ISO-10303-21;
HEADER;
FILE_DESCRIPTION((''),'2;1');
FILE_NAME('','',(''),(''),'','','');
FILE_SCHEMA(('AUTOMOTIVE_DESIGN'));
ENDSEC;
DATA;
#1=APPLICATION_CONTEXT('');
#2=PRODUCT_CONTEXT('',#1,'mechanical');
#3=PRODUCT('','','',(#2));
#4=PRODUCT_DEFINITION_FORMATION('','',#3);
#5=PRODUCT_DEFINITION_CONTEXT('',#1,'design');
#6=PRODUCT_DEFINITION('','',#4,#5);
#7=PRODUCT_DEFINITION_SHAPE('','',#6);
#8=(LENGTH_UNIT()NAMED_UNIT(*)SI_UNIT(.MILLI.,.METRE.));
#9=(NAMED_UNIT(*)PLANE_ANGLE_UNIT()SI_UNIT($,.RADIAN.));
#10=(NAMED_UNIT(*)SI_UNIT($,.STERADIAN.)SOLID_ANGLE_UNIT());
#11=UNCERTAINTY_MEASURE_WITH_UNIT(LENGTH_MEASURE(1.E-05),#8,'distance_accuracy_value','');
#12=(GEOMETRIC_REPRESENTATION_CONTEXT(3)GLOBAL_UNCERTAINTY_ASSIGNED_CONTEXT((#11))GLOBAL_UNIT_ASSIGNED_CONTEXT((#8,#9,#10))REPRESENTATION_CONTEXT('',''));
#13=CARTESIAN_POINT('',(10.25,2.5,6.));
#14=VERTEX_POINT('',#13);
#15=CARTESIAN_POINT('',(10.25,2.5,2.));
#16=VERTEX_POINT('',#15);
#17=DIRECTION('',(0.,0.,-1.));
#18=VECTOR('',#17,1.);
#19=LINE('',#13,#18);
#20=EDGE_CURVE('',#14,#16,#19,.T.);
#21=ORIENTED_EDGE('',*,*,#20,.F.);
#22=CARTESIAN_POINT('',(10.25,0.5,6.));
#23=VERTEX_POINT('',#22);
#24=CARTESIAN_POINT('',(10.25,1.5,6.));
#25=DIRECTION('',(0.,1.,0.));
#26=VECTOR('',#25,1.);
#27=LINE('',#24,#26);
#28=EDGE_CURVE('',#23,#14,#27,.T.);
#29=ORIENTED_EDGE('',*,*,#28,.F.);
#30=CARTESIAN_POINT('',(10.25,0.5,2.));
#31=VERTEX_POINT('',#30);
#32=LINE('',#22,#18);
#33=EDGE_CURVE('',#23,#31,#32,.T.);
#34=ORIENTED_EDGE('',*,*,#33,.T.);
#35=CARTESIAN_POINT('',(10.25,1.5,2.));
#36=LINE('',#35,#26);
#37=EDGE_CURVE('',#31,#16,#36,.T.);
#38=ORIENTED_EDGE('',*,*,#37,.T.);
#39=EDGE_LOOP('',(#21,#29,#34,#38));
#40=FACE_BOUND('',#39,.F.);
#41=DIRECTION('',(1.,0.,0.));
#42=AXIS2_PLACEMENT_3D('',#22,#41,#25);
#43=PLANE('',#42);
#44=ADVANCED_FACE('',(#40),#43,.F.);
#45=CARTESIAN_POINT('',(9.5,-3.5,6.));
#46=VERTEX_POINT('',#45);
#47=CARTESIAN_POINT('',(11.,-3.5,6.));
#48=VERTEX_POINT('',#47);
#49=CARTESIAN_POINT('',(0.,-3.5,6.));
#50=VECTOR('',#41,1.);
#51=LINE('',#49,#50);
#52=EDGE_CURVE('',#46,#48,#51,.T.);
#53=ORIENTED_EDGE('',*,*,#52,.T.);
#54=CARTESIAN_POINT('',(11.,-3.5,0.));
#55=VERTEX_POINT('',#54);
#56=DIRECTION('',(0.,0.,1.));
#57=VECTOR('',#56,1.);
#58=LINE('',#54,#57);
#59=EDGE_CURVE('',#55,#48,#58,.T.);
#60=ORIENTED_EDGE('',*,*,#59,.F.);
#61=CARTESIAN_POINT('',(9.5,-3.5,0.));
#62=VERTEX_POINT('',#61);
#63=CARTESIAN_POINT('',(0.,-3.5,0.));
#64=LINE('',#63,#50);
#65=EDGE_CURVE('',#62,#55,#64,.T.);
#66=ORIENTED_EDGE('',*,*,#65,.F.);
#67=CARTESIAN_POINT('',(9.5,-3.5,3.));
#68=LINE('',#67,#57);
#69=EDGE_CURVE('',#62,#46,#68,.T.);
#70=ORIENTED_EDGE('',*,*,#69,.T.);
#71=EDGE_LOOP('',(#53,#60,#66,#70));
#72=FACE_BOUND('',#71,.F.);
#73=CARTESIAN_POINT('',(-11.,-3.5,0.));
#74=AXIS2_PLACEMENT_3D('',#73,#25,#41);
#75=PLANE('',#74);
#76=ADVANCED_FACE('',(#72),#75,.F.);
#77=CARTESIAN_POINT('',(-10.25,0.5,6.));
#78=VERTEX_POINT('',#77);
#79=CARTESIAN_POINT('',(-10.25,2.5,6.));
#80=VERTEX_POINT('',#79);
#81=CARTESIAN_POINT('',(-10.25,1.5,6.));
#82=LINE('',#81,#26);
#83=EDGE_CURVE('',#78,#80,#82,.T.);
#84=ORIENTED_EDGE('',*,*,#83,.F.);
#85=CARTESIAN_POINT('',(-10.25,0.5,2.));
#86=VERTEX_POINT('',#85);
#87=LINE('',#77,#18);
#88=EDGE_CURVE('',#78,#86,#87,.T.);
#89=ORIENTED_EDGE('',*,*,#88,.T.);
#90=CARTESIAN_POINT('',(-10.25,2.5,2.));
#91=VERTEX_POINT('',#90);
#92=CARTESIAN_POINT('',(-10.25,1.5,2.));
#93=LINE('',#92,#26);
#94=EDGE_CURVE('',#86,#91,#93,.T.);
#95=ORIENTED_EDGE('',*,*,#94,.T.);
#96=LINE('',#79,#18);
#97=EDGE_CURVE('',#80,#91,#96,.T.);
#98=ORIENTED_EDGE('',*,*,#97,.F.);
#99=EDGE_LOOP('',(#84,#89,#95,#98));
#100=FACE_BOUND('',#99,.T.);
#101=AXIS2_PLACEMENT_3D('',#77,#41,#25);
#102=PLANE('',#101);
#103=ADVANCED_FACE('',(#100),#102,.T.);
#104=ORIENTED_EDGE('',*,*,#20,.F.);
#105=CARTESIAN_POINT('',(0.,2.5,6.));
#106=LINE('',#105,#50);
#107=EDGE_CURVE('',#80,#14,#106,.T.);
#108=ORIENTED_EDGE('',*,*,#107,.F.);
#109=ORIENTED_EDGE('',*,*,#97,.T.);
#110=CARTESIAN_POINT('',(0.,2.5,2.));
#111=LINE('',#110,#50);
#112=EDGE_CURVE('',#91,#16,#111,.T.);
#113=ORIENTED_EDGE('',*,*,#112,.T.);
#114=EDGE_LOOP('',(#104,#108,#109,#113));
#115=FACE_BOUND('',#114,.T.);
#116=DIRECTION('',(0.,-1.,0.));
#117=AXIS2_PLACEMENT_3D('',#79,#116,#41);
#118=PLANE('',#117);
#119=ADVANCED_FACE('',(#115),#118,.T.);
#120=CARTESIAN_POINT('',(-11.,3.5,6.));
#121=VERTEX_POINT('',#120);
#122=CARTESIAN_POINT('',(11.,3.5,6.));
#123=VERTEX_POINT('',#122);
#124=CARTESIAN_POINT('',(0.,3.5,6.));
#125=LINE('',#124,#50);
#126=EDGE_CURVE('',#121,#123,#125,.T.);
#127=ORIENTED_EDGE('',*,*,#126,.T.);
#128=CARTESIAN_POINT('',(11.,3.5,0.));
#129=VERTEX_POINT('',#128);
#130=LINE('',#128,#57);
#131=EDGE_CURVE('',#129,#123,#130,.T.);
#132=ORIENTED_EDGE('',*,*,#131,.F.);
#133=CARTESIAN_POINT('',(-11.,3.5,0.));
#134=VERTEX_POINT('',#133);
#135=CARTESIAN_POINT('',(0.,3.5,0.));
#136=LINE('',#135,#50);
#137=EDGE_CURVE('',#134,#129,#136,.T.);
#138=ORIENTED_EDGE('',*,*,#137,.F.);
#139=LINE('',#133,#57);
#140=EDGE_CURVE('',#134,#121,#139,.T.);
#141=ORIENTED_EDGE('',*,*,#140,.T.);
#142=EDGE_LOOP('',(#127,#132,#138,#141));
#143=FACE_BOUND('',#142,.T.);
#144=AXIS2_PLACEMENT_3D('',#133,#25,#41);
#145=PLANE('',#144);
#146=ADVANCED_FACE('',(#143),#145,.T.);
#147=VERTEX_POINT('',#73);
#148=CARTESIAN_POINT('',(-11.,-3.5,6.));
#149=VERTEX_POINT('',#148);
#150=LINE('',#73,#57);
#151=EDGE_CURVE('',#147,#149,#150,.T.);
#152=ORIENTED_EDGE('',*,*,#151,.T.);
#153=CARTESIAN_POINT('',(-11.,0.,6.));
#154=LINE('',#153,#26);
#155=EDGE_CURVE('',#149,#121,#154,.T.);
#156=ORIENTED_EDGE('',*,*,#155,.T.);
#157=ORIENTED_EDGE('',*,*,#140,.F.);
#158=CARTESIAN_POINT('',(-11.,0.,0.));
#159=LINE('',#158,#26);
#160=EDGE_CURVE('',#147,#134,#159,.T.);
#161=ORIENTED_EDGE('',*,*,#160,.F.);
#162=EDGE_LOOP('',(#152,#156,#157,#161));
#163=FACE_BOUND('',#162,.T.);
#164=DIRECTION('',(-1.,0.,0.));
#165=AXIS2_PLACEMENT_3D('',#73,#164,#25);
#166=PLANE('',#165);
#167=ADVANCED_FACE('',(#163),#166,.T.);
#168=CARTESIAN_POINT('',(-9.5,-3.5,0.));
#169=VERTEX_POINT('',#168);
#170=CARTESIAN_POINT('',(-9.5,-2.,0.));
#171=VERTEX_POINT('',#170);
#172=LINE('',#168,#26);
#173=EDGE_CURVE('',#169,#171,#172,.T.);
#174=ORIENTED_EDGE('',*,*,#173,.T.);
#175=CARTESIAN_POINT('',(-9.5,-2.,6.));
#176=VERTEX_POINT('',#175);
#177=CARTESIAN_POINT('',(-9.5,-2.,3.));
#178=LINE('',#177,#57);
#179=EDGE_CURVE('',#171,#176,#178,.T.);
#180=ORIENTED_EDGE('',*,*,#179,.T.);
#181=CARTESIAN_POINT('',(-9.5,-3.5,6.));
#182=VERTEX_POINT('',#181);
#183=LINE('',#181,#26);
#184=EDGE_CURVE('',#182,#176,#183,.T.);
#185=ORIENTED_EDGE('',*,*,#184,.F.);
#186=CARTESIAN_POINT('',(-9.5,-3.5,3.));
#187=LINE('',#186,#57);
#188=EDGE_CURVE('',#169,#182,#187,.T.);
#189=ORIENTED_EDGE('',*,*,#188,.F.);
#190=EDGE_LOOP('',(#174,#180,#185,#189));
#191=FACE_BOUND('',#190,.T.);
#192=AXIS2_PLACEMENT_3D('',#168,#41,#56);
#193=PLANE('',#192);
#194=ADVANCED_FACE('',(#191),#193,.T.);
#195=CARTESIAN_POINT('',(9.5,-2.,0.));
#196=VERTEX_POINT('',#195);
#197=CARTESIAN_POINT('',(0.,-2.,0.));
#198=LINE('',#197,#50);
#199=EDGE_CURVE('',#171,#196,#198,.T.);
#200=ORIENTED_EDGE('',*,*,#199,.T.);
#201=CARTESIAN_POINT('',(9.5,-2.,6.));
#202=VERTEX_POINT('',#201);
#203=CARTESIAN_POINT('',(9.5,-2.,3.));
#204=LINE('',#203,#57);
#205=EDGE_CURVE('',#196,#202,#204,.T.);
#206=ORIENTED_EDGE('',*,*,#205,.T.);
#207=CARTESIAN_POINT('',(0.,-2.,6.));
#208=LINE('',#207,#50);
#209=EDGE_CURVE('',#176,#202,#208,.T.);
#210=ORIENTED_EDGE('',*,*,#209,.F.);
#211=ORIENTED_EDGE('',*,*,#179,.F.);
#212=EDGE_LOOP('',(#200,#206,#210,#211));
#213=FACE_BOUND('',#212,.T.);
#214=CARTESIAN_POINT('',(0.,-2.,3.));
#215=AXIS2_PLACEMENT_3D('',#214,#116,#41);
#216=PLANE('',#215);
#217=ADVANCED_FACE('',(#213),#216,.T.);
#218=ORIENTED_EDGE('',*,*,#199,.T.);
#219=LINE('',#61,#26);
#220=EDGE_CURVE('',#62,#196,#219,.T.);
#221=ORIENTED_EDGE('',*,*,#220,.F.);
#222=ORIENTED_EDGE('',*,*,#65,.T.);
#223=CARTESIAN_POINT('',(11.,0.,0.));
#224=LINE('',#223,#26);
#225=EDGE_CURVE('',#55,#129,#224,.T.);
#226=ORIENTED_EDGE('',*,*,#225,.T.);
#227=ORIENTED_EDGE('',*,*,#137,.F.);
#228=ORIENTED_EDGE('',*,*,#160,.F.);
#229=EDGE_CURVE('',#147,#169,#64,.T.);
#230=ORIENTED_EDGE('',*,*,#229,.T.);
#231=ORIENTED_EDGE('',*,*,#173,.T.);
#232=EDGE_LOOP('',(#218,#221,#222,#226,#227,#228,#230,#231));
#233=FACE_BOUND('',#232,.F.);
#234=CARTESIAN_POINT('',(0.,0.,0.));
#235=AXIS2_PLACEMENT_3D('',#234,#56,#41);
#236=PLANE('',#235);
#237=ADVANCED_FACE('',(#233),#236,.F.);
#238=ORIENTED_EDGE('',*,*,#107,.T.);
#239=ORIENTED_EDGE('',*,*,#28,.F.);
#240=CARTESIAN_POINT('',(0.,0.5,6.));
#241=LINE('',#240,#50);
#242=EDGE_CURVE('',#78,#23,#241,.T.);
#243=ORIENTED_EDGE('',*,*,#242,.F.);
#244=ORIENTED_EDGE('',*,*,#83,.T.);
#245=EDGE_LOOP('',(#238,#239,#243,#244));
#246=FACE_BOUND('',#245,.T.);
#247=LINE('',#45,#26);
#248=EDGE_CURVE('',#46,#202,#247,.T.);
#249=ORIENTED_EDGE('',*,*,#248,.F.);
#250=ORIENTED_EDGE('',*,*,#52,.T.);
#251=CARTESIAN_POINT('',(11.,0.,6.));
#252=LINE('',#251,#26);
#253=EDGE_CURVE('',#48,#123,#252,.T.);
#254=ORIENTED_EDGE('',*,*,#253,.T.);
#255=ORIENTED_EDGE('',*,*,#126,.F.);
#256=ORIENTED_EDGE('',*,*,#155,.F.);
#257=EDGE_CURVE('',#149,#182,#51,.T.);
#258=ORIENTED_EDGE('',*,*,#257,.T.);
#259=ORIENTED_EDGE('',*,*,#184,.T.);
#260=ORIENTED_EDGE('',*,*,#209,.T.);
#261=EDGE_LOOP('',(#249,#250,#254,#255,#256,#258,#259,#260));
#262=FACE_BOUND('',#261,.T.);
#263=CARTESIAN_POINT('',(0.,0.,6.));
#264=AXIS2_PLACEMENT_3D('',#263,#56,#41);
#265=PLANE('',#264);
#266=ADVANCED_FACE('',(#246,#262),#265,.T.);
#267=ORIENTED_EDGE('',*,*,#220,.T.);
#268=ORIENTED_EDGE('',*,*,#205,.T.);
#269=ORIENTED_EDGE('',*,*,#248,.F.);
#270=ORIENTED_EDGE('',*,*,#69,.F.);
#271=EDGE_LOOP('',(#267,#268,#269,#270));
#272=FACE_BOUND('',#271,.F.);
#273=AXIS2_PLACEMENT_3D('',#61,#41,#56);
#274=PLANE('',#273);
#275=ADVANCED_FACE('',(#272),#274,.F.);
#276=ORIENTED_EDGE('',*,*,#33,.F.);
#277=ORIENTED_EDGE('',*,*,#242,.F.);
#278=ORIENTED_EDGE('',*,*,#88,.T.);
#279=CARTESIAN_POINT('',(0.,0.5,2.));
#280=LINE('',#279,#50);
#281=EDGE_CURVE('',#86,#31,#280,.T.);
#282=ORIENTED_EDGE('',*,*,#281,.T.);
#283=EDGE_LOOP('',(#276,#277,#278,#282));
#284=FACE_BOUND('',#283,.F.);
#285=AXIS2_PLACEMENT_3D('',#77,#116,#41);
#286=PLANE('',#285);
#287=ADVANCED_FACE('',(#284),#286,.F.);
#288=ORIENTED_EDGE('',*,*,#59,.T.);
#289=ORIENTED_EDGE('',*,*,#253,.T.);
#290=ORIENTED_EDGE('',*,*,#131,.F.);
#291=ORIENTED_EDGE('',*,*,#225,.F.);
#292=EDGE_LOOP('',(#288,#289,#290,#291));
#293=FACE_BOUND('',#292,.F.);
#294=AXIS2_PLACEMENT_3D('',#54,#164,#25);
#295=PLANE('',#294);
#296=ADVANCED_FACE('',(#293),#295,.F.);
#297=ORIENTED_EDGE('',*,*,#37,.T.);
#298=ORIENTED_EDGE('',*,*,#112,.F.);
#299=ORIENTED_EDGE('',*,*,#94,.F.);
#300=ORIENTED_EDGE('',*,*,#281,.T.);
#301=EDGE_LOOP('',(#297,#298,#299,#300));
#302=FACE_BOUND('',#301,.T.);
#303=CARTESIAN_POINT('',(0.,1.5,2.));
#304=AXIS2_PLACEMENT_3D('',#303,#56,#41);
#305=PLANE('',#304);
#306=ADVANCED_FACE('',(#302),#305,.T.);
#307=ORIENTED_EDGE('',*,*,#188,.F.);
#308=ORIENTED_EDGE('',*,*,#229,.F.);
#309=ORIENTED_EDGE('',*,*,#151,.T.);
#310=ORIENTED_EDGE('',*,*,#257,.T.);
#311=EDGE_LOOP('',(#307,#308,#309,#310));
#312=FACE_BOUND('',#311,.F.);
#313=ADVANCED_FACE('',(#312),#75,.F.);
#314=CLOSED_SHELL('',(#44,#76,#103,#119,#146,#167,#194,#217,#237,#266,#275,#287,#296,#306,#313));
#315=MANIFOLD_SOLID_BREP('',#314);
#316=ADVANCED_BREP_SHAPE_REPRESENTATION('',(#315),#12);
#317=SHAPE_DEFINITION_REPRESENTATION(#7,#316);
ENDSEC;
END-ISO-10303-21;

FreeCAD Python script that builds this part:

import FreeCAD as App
import Part
import Sketcher
from FreeCAD import Vector
Q = App.Units.Quantity


def add_polygon(sketch, points):
    """Adds a closed chain of lines whose ends are joined by coincident constraints."""
    first, n = sketch.GeometryCount, len(points)
    for a, b in zip(points, points[1:] + points[:1]):
        sketch.addGeometry(Part.LineSegment(App.Vector(*a, 0), App.Vector(*b, 0)), False)
    for i in range(n):
        sketch.addConstraint(Sketcher.Constraint("Coincident", first + i, 2, first + (i + 1) % n, 1))

doc = App.newDocument("Part")
body = doc.addObject("PartDesign::Body", "Body")

# Sketch on XY plane
sketch1 = doc.addObject("Sketcher::SketchObject", "Sketch")
body.addObject(sketch1)
sketch1.AttachmentSupport = (doc.XY_Plane, [""])
sketch1.MapMode = "FlatFace"
add_polygon(sketch1, [(-11, 4), (-11, -4), (11, -4), (11, 4)])  # lines 0-3
sketch1.addConstraint([
    Sketcher.Constraint("Vertical", 0),
    Sketcher.Constraint("Horizontal", 1),
    Sketcher.Constraint("Vertical", 2),
    Sketcher.Constraint("Horizontal", 3),
    Sketcher.Constraint("Symmetric", 0, 2, 2, 2, -1, 1),
    Sketcher.Constraint("DistanceX", 1, 1, 1, 2, Q("22 mm")),
    Sketcher.Constraint("DistanceY", 0, 2, 0, 1, Q("7 mm")),
])
pad1 = doc.addObject("PartDesign::Pad", "Pad")
body.addObject(pad1)
pad1.Profile = sketch1
pad1.Length = 6

# Sketch on XY plane
sketch2 = doc.addObject("Sketcher::SketchObject", "Sketch001")
body.addObject(sketch2)
sketch2.AttachmentSupport = (doc.XY_Plane, [""])
sketch2.MapMode = "FlatFace"
sketch2.AttachmentOffset = App.Placement(Vector(0, 0, 6), App.Rotation())
add_polygon(sketch2, [(-10.2, 2.5), (-10.2, 0.5), (10.2, 0.5), (10.2, 2.5)])  # lines 0-3
sketch2.addConstraint([
    Sketcher.Constraint("Vertical", 0),
    Sketcher.Constraint("Horizontal", 1),
    Sketcher.Constraint("Vertical", 2),
    Sketcher.Constraint("Horizontal", 3),
    Sketcher.Constraint("DistanceY", 0, 2, 0, 1, Q("2 mm")),
    Sketcher.Constraint("DistanceX", 1, 1, 1, 2, Q("20.5 mm")),
    Sketcher.Constraint("DistanceY", -1, 1, 0, 2, Q("0.5 mm")),
    Sketcher.Constraint("DistanceX", 0, 2, -1, 1, Q("10.25 mm")),
])
pocket1 = doc.addObject("PartDesign::Pocket", "Pocket")
body.addObject(pocket1)
pocket1.Profile = sketch2
pocket1.Length = 4

# Sketch on XZ plane
sketch3 = doc.addObject("Sketcher::SketchObject", "Sketch002")
body.addObject(sketch3)
sketch3.AttachmentSupport = (doc.XZ_Plane, [""])
sketch3.MapMode = "FlatFace"
sketch3.AttachmentOffset = App.Placement(Vector(0, 0, 3.5), App.Rotation())
add_polygon(sketch3, [(-10, 6), (-10, 0), (10, 0), (10, 6)])  # lines 0-3
sketch3.addConstraint([
    Sketcher.Constraint("Vertical", 0),
    Sketcher.Constraint("Horizontal", 1),
    Sketcher.Constraint("Vertical", 2),
    Sketcher.Constraint("Horizontal", 3),
    Sketcher.Constraint("Symmetric", 0, 2, 1, 2, -1, 1),
    Sketcher.Constraint("DistanceX", 1, 1, 1, 2, Q("19 mm")),
    Sketcher.Constraint("DistanceY", 0, 2, 0, 1, Q("6 mm")),
])
pocket2 = doc.addObject("PartDesign::Pocket", "Pocket001")
body.addObject(pocket2)
pocket2.Profile = sketch3
pocket2.Length = 1.5

doc.recompute()
